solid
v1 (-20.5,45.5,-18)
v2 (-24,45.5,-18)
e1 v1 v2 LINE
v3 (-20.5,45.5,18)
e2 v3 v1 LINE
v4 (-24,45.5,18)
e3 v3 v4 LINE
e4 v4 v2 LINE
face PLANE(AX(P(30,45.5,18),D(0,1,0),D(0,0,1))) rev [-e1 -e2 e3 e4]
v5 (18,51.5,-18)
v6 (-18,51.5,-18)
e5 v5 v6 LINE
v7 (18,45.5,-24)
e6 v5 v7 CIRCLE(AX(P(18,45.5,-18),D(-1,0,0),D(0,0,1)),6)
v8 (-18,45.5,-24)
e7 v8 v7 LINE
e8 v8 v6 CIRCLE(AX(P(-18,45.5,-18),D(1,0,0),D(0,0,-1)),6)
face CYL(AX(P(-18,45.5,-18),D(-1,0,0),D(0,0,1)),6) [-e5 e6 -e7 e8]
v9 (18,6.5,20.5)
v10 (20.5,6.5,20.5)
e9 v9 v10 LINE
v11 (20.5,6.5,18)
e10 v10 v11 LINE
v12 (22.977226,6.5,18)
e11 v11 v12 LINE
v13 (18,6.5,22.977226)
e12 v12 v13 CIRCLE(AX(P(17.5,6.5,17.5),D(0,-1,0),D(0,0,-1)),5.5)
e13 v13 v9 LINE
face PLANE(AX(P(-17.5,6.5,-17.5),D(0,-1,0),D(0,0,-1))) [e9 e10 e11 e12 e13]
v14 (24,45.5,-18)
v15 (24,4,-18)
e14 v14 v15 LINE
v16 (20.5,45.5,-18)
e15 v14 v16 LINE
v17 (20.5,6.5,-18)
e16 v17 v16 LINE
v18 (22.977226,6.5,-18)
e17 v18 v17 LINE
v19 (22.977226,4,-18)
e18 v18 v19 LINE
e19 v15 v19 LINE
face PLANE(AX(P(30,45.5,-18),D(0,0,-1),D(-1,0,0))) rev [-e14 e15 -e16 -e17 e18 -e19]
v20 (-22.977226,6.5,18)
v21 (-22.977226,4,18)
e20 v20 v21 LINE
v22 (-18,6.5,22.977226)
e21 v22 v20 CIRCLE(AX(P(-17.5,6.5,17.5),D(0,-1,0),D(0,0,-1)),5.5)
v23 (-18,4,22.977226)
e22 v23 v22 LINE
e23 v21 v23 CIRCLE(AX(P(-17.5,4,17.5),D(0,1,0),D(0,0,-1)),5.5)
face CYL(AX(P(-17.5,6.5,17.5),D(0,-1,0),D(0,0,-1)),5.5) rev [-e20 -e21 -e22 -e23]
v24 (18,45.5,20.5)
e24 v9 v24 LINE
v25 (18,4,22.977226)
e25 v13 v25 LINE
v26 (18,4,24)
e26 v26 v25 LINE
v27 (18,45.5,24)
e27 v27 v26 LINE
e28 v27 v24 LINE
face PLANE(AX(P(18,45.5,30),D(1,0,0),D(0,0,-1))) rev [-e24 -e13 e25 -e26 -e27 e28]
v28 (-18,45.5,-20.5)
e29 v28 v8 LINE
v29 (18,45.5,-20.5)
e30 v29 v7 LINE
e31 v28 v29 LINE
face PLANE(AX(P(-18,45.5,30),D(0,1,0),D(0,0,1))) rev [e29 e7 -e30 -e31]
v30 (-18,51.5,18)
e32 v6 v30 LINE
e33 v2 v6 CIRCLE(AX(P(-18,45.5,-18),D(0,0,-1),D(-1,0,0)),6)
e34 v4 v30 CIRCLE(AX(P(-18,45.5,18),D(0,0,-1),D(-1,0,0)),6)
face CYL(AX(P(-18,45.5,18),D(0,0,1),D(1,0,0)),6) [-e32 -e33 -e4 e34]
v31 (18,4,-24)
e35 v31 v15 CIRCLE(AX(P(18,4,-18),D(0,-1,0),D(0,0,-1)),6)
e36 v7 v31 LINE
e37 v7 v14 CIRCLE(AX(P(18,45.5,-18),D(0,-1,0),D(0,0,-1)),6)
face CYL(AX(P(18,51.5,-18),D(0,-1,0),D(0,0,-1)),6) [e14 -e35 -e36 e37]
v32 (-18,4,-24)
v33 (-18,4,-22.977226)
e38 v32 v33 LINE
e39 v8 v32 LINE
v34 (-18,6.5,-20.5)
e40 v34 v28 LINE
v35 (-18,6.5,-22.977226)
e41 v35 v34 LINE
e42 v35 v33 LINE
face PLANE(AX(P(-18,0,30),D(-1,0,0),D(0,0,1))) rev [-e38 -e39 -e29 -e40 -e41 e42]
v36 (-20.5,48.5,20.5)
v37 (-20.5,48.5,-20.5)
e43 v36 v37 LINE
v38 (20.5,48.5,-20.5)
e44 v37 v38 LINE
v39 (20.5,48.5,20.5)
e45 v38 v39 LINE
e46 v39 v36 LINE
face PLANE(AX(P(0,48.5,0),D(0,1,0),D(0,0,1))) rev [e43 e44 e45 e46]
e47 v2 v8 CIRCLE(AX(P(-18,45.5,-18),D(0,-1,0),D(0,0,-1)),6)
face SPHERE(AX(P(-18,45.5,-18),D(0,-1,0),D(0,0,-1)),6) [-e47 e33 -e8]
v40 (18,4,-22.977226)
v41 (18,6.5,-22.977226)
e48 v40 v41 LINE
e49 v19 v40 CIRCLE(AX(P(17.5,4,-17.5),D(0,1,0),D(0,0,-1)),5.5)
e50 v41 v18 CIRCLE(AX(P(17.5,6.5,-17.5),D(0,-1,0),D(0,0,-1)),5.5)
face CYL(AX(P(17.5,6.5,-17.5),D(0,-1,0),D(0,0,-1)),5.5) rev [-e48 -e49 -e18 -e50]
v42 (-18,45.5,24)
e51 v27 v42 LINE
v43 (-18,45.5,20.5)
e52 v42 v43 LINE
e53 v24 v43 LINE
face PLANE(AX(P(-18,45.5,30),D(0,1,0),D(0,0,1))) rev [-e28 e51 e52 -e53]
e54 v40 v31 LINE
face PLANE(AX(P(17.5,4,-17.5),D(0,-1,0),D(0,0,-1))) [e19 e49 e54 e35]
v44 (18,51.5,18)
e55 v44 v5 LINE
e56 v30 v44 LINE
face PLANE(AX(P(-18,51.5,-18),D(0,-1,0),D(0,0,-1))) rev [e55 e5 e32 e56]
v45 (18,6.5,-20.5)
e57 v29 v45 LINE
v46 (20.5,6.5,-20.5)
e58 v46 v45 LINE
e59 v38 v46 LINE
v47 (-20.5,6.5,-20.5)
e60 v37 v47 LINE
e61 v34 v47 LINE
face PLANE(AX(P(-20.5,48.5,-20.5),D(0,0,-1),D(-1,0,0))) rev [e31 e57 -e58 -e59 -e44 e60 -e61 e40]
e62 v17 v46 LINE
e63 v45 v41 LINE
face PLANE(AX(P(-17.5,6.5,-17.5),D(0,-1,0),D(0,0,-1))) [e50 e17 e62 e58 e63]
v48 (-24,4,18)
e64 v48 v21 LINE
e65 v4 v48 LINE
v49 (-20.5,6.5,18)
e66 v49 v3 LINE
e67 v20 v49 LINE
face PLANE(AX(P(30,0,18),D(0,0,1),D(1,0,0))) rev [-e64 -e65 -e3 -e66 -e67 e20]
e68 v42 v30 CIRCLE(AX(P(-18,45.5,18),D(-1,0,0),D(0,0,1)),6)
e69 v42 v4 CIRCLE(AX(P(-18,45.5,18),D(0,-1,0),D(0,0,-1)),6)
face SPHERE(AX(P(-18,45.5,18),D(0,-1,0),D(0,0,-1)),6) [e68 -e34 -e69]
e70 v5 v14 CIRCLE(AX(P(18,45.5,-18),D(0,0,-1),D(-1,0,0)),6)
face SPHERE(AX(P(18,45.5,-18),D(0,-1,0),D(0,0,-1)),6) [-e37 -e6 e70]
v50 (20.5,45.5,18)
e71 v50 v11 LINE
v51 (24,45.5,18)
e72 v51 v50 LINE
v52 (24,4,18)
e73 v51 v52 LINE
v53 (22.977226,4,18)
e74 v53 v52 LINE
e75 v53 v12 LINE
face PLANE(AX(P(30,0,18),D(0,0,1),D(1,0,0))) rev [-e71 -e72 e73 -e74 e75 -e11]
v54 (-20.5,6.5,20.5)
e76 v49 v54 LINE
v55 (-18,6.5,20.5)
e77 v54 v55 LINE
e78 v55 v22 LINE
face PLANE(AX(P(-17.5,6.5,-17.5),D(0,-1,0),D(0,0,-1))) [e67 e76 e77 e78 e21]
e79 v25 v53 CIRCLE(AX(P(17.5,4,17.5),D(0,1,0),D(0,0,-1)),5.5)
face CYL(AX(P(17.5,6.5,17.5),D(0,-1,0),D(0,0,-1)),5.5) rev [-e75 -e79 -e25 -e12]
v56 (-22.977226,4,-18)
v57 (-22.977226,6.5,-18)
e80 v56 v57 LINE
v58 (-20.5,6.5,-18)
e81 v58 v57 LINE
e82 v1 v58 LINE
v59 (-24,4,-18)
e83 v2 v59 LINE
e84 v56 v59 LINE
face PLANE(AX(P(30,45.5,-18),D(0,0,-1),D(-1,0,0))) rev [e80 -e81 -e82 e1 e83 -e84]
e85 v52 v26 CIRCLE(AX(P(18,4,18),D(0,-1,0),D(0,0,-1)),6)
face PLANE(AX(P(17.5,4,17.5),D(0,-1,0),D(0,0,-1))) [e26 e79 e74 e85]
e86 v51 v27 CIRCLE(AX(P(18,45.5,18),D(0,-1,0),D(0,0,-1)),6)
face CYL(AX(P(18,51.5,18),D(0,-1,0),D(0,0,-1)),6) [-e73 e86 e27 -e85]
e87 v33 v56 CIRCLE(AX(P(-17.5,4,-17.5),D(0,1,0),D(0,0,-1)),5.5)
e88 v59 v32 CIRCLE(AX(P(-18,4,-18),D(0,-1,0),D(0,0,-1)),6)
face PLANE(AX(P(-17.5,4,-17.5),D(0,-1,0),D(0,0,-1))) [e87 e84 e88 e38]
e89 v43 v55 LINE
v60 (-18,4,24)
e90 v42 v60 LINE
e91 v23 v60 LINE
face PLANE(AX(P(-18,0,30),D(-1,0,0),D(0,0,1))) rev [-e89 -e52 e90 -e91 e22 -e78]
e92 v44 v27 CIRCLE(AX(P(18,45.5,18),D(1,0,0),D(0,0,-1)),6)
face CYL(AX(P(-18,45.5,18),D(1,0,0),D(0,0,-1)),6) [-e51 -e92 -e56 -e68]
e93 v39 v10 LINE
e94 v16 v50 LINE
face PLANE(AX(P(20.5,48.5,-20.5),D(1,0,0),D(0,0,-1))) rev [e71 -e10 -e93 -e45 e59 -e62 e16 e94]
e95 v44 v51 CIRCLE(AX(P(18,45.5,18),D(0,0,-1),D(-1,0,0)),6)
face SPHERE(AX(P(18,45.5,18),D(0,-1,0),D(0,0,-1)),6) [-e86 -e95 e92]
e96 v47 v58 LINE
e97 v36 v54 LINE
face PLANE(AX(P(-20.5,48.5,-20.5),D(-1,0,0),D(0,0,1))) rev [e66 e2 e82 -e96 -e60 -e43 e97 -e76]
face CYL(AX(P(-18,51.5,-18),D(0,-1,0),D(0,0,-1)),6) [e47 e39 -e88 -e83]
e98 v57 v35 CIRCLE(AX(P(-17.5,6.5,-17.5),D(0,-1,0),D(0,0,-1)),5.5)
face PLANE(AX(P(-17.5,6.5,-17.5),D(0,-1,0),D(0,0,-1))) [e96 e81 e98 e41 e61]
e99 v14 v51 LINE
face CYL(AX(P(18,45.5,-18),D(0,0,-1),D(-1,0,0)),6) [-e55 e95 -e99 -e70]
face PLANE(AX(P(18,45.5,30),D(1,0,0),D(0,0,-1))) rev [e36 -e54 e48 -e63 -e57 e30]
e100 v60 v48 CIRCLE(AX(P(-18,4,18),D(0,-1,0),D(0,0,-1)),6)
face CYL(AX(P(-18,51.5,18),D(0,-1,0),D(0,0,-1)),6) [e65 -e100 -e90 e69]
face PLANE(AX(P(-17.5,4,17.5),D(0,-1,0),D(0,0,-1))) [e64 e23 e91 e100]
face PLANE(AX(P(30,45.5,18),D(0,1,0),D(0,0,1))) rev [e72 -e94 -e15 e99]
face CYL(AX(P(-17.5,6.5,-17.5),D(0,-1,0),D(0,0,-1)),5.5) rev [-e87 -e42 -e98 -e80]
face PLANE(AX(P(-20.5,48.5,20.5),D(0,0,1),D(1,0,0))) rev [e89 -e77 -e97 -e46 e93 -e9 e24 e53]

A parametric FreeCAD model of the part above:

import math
import FreeCAD as App
import Part
import Sketcher
Q = App.Units.Quantity


def edges_at(feature, points):
    """Names of the edges that pass closest to the given points."""
    edges = feature.Shape.Edges
    near = lambda p: min(range(len(edges)), key=lambda i: edges[i].distToShape(Part.Vertex(*p))[0])
    return sorted({f"Edge{near(p) + 1}" for p in points})


def add_polygon(sketch, points):
    """Adds a closed chain of lines whose ends are joined by coincident constraints."""
    first, n = sketch.GeometryCount, len(points)
    for a, b in zip(points, points[1:] + points[:1]):
        sketch.addGeometry(Part.LineSegment(App.Vector(*a, 0), App.Vector(*b, 0)), False)
    for i in range(n):
        sketch.addConstraint(Sketcher.Constraint("Coincident", first + i, 2, first + (i + 1) % n, 1))

doc = App.newDocument("Part")
body = doc.addObject("PartDesign::Body", "Body")

# Sketch on XZ plane
sketch1 = body.newObject("Sketcher::SketchObject", "Sketch")
sketch1.AttachmentSupport = (doc.getObject("XZ_Plane"), [""])
sketch1.MapMode = "FlatFace"
sketch1.addGeometry(Part.LineSegment(App.Vector(-18, 24, 0), App.Vector(18, 24, 0)), False)
sketch1.addGeometry(Part.ArcOfCircle(Part.Circle(App.Vector(18, 18, 0), App.Vector(0, 0, 1), 6), math.radians(0), math.radians(90)), False)
sketch1.addGeometry(Part.LineSegment(App.Vector(24, 18, 0), App.Vector(24, -18, 0)), False)
sketch1.addGeometry(Part.ArcOfCircle(Part.Circle(App.Vector(18, -18, 0), App.Vector(0, 0, 1), 6), math.radians(-90), math.radians(0)), False)
sketch1.addGeometry(Part.LineSegment(App.Vector(18, -24, 0), App.Vector(-18, -24, 0)), False)
sketch1.addGeometry(Part.ArcOfCircle(Part.Circle(App.Vector(-18, -18, 0), App.Vector(0, 0, 1), 6), math.radians(180), math.radians(270)), False)
sketch1.addGeometry(Part.LineSegment(App.Vector(-24, -18, 0), App.Vector(-24, 18, 0)), False)
sketch1.addGeometry(Part.ArcOfCircle(Part.Circle(App.Vector(-18, 18, 0), App.Vector(0, 0, 1), 6), math.radians(90), math.radians(180)), False)
sketch1.addConstraint(Sketcher.Constraint("Tangent", 0, 2, 1, 2))
sketch1.addConstraint(Sketcher.Constraint("Tangent", 1, 1, 2, 1))
sketch1.addConstraint(Sketcher.Constraint("Tangent", 2, 2, 3, 2))
sketch1.addConstraint(Sketcher.Constraint("Tangent", 3, 1, 4, 1))
sketch1.addConstraint(Sketcher.Constraint("Tangent", 4, 2, 5, 2))
sketch1.addConstraint(Sketcher.Constraint("Tangent", 5, 1, 6, 1))
sketch1.addConstraint(Sketcher.Constraint("Tangent", 6, 2, 7, 2))
sketch1.addConstraint(Sketcher.Constraint("Tangent", 7, 1, 0, 1))
sketch1.addConstraint(Sketcher.Constraint("Horizontal", 0))
sketch1.addConstraint(Sketcher.Constraint("Vertical", 2))
sketch1.addConstraint(Sketcher.Constraint("Horizontal", 4))
sketch1.addConstraint(Sketcher.Constraint("Vertical", 6))
sketch1.addConstraint(Sketcher.Constraint("Equal", 1, 3))
sketch1.addConstraint(Sketcher.Constraint("Equal", 3, 5))
sketch1.addConstraint(Sketcher.Constraint("Equal", 5, 7))
sketch1.addConstraint(Sketcher.Constraint("Symmetric", 1, 3, 5, 3, -1, 1))
sketch1.addConstraint(Sketcher.Constraint("Equal", 4, 2))
sketch1.addConstraint(Sketcher.Constraint("Radius", 1, Q("6 mm")))
sketch1.addConstraint(Sketcher.Constraint("DistanceX", 0, 1, 0, 2, Q("36 mm")))
pad1 = body.newObject("PartDesign::Pad", "Pad")
pad1.Profile = sketch1
pad1.Length = 51.5
pad1.Reversed = True
doc.recompute()

fillet = body.newObject("PartDesign::Fillet", "Fillet")
fillet.Base = (pad1, edges_at(pad1, [
    (22.243, 51.5, -22.243),
    (24, 51.5, 0),
    (22.243, 51.5, 22.243),
    (0, 51.5, 24),
    (-22.243, 51.5, 22.243),
    (-24, 51.5, 0),
    (-22.243, 51.5, -22.243),
    (0, 51.5, -24),
]))
fillet.Radius = 6

# Sketch on XZ plane
sketch2 = body.newObject("Sketcher::SketchObject", "Sketch001")
sketch2.AttachmentSupport = (doc.getObject("XZ_Plane"), [""])
sketch2.MapMode = "FlatFace"
add_polygon(sketch2, [(-20, 20), (-20, -20), (20, -20), (20, 20)])  # lines 0-3
sketch2.addConstraint(Sketcher.Constraint("Vertical", 0))
sketch2.addConstraint(Sketcher.Constraint("Horizontal", 1))
sketch2.addConstraint(Sketcher.Constraint("Vertical", 2))
sketch2.addConstraint(Sketcher.Constraint("Horizontal", 3))
sketch2.addConstraint(Sketcher.Constraint("Symmetric", 0, 2, 2, 2, -1, 1))
sketch2.addConstraint(Sketcher.Constraint("Equal", 3, 0))
sketch2.addConstraint(Sketcher.Constraint("DistanceX", 1, 1, 1, 2, Q("41 mm")))
pocket1 = body.newObject("PartDesign::Pocket", "Pocket")
pocket1.Profile = sketch2
pocket1.Length = 48.5

# Sketch on XY plane
sketch3 = body.newObject("Sketcher::SketchObject", "Sketch002")
sketch3.AttachmentSupport = (doc.getObject("XY_Plane"), [""])
sketch3.MapMode = "FlatFace"
sketch3.AttachmentOffset = App.Placement(App.Vector(0, 0, -24), App.Rotation())
add_polygon(sketch3, [(18, 46), (18, 0), (-18, 0), (-18, 46)])  # lines 0-3
sketch3.addConstraint(Sketcher.Constraint("Vertical", 0))
sketch3.addConstraint(Sketcher.Constraint("Horizontal", 1))
sketch3.addConstraint(Sketcher.Constraint("Vertical", 2))
sketch3.addConstraint(Sketcher.Constraint("Horizontal", 3))
sketch3.addConstraint(Sketcher.Constraint("Symmetric", 0, 2, 1, 2, -1, 1))
sketch3.addConstraint(Sketcher.Constraint("DistanceX", 1, 2, 1, 1, Q("36 mm")))
sketch3.addConstraint(Sketcher.Constraint("DistanceY", 0, 2, 0, 1, Q("45.5 mm")))
pocket2 = body.newObject("PartDesign::Pocket", "Pocket001")
pocket2.Profile = sketch3
pocket2.Length = 54
pocket2.Reversed = True

# Sketch on YZ plane
sketch4 = body.newObject("Sketcher::SketchObject", "Sketch003")
sketch4.AttachmentSupport = (doc.getObject("YZ_Plane"), [""])
sketch4.MapMode = "FlatFace"
sketch4.AttachmentOffset = App.Placement(App.Vector(0, 0, -24), App.Rotation())
add_polygon(sketch4, [(46, -18), (0, -18), (0, 18), (46, 18)])  # lines 0-3
sketch4.addConstraint(Sketcher.Constraint("Horizontal", 0))
sketch4.addConstraint(Sketcher.Constraint("Vertical", 1))
sketch4.addConstraint(Sketcher.Constraint("Horizontal", 2))
sketch4.addConstraint(Sketcher.Constraint("Vertical", 3))
sketch4.addConstraint(Sketcher.Constraint("Symmetric", 0, 2, 1, 2, -1, 1))
sketch4.addConstraint(Sketcher.Constraint("DistanceY", 1, 1, 1, 2, Q("36 mm")))
sketch4.addConstraint(Sketcher.Constraint("DistanceX", 0, 2, 0, 1, Q("45.5 mm")))
pocket3 = body.newObject("PartDesign::Pocket", "Pocket002")
pocket3.Profile = sketch4
pocket3.Length = 54
pocket3.Reversed = True

# Sketch on XZ plane
sketch5 = body.newObject("Sketcher::SketchObject", "Sketch004")
sketch5.AttachmentSupport = (doc.getObject("XZ_Plane"), [""])
sketch5.MapMode = "FlatFace"
sketch5.addGeometry(Part.LineSegment(App.Vector(-18, -23, 0), App.Vector(18, -23, 0)), False)
sketch5.addGeometry(Part.ArcOfCircle(Part.Circle(App.Vector(18, -18, 0), App.Vector(0, 0, 1), 5), math.radians(-90), math.radians(0)), False)
sketch5.addGeometry(Part.LineSegment(App.Vector(23, -18, 0), App.Vector(23, 18, 0)), False)
sketch5.addGeometry(Part.ArcOfCircle(Part.Circle(App.Vector(18, 18, 0), App.Vector(0, 0, 1), 5), math.radians(0), math.radians(90)), False)
sketch5.addGeometry(Part.LineSegment(App.Vector(18, 23, 0), App.Vector(-18, 23, 0)), False)
sketch5.addGeometry(Part.ArcOfCircle(Part.Circle(App.Vector(-18, 18, 0), App.Vector(0, 0, 1), 5), math.radians(90), math.radians(180)), False)
sketch5.addGeometry(Part.LineSegment(App.Vector(-23, 18, 0), App.Vector(-23, -18, 0)), False)
sketch5.addGeometry(Part.ArcOfCircle(Part.Circle(App.Vector(-18, -18, 0), App.Vector(0, 0, 1), 5), math.radians(180), math.radians(270)), False)
sketch5.addConstraint(Sketcher.Constraint("Tangent", 0, 2, 1, 1))
sketch5.addConstraint(Sketcher.Constraint("Tangent", 1, 2, 2, 1))
sketch5.addConstraint(Sketcher.Constraint("Tangent", 2, 2, 3, 1))
sketch5.addConstraint(Sketcher.Constraint("Tangent", 3, 2, 4, 1))
sketch5.addConstraint(Sketcher.Constraint("Tangent", 4, 2, 5, 1))
sketch5.addConstraint(Sketcher.Constraint("Tangent", 5, 2, 6, 1))
sketch5.addConstraint(Sketcher.Constraint("Tangent", 6, 2, 7, 1))
sketch5.addConstraint(Sketcher.Constraint("Tangent", 7, 2, 0, 1))
sketch5.addConstraint(Sketcher.Constraint("Horizontal", 0))
sketch5.addConstraint(Sketcher.Constraint("Vertical", 2))
sketch5.addConstraint(Sketcher.Constraint("Horizontal", 4))
sketch5.addConstraint(Sketcher.Constraint("Vertical", 6))
sketch5.addConstraint(Sketcher.Constraint("Equal", 1, 3))
sketch5.addConstraint(Sketcher.Constraint("Equal", 3, 5))
sketch5.addConstraint(Sketcher.Constraint("Equal", 5, 7))
sketch5.addConstraint(Sketcher.Constraint("Symmetric", 1, 3, 5, 3, -1, 1))
sketch5.addConstraint(Sketcher.Constraint("Equal", 4, 2))
sketch5.addConstraint(Sketcher.Constraint("Radius", 1, Q("5.5 mm")))
sketch5.addConstraint(Sketcher.Constraint("DistanceX", 0, 1, 0, 2, Q("35 mm")))
pocket4 = body.newObject("PartDesign::Pocket", "Pocket003")
pocket4.Profile = sketch5
pocket4.Length = 6.5

# Sketch on XZ plane
sketch6 = body.newObject("Sketcher::SketchObject", "Sketch005")
sketch6.AttachmentSupport = (doc.getObject("XZ_Plane"), [""])
sketch6.MapMode = "FlatFace"
sketch6.addGeometry(Part.LineSegment(App.Vector(18, -23, 0), App.Vector(18, -24, 0)), False)
sketch6.addGeometry(Part.ArcOfCircle(Part.Circle(App.Vector(18, -18, 0), App.Vector(0, 0, 1), 6), math.radians(-90), math.radians(0)), False)
sketch6.addGeometry(Part.LineSegment(App.Vector(24, -18, 0), App.Vector(23, -18, 0)), False)
sketch6.addGeometry(Part.ArcOfCircle(Part.Circle(App.Vector(17.5, -17.5, 0), App.Vector(0, 0, 1), 5.5), math.radians(-85), math.radians(-5)), False)
sketch6.addGeometry(Part.LineSegment(App.Vector(23, 18, 0), App.Vector(24, 18, 0)), False)
sketch6.addGeometry(Part.ArcOfCircle(Part.Circle(App.Vector(18, 18, 0), App.Vector(0, 0, 1), 6), math.radians(0), math.radians(90)), False)
sketch6.addGeometry(Part.LineSegment(App.Vector(18, 24, 0), App.Vector(18, 23, 0)), False)
sketch6.addGeometry(Part.ArcOfCircle(Part.Circle(App.Vector(17.5, 17.5, 0), App.Vector(0, 0, 1), 5.5), math.radians(5), math.radians(85)), False)
sketch6.addGeometry(Part.LineSegment(App.Vector(-18, 23, 0), App.Vector(-18, 24, 0)), False)
sketch6.addGeometry(Part.ArcOfCircle(Part.Circle(App.Vector(-18, 18, 0), App.Vector(0, 0, 1), 6), math.radians(90), math.radians(180)), False)
sketch6.addGeometry(Part.LineSegment(App.Vector(-24, 18, 0), App.Vector(-23, 18, 0)), False)
sketch6.addGeometry(Part.ArcOfCircle(Part.Circle(App.Vector(-17.5, 17.5, 0), App.Vector(0, 0, 1), 5.5), math.radians(95), math.radians(175)), False)
sketch6.addGeometry(Part.LineSegment(App.Vector(-23, -18, 0), App.Vector(-24, -18, 0)), False)
sketch6.addGeometry(Part.ArcOfCircle(Part.Circle(App.Vector(-18, -18, 0), App.Vector(0, 0, 1), 6), math.radians(180), math.radians(270)), False)
sketch6.addGeometry(Part.LineSegment(App.Vector(-18, -24, 0), App.Vector(-18, -23, 0)), False)
sketch6.addGeometry(Part.ArcOfCircle(Part.Circle(App.Vector(-17.5, -17.5, 0), App.Vector(0, 0, 1), 5.5), math.radians(-175), math.radians(-95)), False)
sketch6.addConstraint(Sketcher.Constraint("Coincident", 0, 2, 1, 1))
sketch6.addConstraint(Sketcher.Constraint("Coincident", 1, 2, 2, 1))
sketch6.addConstraint(Sketcher.Constraint("Coincident", 2, 2, 3, 2))
sketch6.addConstraint(Sketcher.Constraint("Coincident", 3, 1, 0, 1))
sketch6.addConstraint(Sketcher.Constraint("Coincident", 4, 2, 5, 1))
sketch6.addConstraint(Sketcher.Constraint("Coincident", 5, 2, 6, 1))
sketch6.addConstraint(Sketcher.Constraint("Coincident", 6, 2, 7, 2))
sketch6.addConstraint(Sketcher.Constraint("Coincident", 7, 1, 4, 1))
sketch6.addConstraint(Sketcher.Constraint("Coincident", 8, 2, 9, 1))
sketch6.addConstraint(Sketcher.Constraint("Coincident", 9, 2, 10, 1))
sketch6.addConstraint(Sketcher.Constraint("Coincident", 10, 2, 11, 2))
sketch6.addConstraint(Sketcher.Constraint("Coincident", 11, 1, 8, 1))
sketch6.addConstraint(Sketcher.Constraint("Coincident", 12, 2, 13, 1))
sketch6.addConstraint(Sketcher.Constraint("Coincident", 13, 2, 14, 1))
sketch6.addConstraint(Sketcher.Constraint("Coincident", 14, 2, 15, 2))
sketch6.addConstraint(Sketcher.Constraint("Coincident", 15, 1, 12, 1))
sketch6.addConstraint(Sketcher.Constraint("Vertical", 0))
sketch6.addConstraint(Sketcher.Constraint("Horizontal", 2))
sketch6.addConstraint(Sketcher.Constraint("Horizontal", 4))
sketch6.addConstraint(Sketcher.Constraint("Vertical", 6))
sketch6.addConstraint(Sketcher.Constraint("Vertical", 8))
sketch6.addConstraint(Sketcher.Constraint("Horizontal", 10))
sketch6.addConstraint(Sketcher.Constraint("Horizontal", 12))
sketch6.addConstraint(Sketcher.Constraint("Vertical", 14))
sketch6.addConstraint(Sketcher.Constraint("Equal", 1, 5))
sketch6.addConstraint(Sketcher.Constraint("Equal", 3, 7))
sketch6.addConstraint(Sketcher.Constraint("Equal", 5, 9))
sketch6.addConstraint(Sketcher.Constraint("Equal", 7, 11))
sketch6.addConstraint(Sketcher.Constraint("Equal", 9, 13))
sketch6.addConstraint(Sketcher.Constraint("Equal", 11, 15))
sketch6.addConstraint(Sketcher.Constraint("Symmetric", 1, 3, 9, 3, -1, 1))
sketch6.addConstraint(Sketcher.Constraint("Symmetric", 3, 3, 11, 3, -1, 1))
sketch6.addConstraint(Sketcher.Constraint("Symmetric", 5, 3, 13, 3, -1, 1))
sketch6.addConstraint(Sketcher.Constraint("Symmetric", 7, 3, 15, 3, -1, 1))
sketch6.addConstraint(Sketcher.Constraint("Symmetric", 5, 3, 9, 3, -2))
sketch6.addConstraint(Sketcher.Constraint("Symmetric", 7, 3, 11, 3, -2))
sketch6.addConstraint(Sketcher.Constraint("Horizontal", 13, 3, 1, 2))
sketch6.addConstraint(Sketcher.Constraint("Horizontal", 9, 3, 4, 2))
sketch6.addConstraint(Sketcher.Constraint("Horizontal", 7, 1, 9, 2))
sketch6.addConstraint(Sketcher.Constraint("Horizontal", 6, 2, 11, 1))
sketch6.addConstraint(Sketcher.Constraint("Horizontal", 2, 2, 12, 2))
sketch6.addConstraint(Sketcher.Constraint("Horizontal", 3, 1, 14, 2))
sketch6.addConstraint(Sketcher.Constraint("Vertical", 5, 3, 0, 2))
sketch6.addConstraint(Sketcher.Constraint("Vertical", 3, 1, 5, 2))
sketch6.addConstraint(Sketcher.Constraint("Equal", 12, 0))
sketch6.addConstraint(Sketcher.Constraint("Radius", 1, Q("6 mm")))
sketch6.addConstraint(Sketcher.Constraint("Radius", 3, Q("5.5 mm")))
sketch6.addConstraint(Sketcher.Constraint("DistanceX", -1, 1, 1, 3, Q("18 mm")))
sketch6.addConstraint(Sketcher.Constraint("DistanceY", 1, 3, -1, 1, Q("18 mm")))
sketch6.addConstraint(Sketcher.Constraint("DistanceY", 3, 3, 7, 3, Q("35 mm")))
pocket5 = body.newObject("PartDesign::Pocket", "Pocket004")
pocket5.Profile = sketch6
pocket5.Length = 4

doc.recompute()
